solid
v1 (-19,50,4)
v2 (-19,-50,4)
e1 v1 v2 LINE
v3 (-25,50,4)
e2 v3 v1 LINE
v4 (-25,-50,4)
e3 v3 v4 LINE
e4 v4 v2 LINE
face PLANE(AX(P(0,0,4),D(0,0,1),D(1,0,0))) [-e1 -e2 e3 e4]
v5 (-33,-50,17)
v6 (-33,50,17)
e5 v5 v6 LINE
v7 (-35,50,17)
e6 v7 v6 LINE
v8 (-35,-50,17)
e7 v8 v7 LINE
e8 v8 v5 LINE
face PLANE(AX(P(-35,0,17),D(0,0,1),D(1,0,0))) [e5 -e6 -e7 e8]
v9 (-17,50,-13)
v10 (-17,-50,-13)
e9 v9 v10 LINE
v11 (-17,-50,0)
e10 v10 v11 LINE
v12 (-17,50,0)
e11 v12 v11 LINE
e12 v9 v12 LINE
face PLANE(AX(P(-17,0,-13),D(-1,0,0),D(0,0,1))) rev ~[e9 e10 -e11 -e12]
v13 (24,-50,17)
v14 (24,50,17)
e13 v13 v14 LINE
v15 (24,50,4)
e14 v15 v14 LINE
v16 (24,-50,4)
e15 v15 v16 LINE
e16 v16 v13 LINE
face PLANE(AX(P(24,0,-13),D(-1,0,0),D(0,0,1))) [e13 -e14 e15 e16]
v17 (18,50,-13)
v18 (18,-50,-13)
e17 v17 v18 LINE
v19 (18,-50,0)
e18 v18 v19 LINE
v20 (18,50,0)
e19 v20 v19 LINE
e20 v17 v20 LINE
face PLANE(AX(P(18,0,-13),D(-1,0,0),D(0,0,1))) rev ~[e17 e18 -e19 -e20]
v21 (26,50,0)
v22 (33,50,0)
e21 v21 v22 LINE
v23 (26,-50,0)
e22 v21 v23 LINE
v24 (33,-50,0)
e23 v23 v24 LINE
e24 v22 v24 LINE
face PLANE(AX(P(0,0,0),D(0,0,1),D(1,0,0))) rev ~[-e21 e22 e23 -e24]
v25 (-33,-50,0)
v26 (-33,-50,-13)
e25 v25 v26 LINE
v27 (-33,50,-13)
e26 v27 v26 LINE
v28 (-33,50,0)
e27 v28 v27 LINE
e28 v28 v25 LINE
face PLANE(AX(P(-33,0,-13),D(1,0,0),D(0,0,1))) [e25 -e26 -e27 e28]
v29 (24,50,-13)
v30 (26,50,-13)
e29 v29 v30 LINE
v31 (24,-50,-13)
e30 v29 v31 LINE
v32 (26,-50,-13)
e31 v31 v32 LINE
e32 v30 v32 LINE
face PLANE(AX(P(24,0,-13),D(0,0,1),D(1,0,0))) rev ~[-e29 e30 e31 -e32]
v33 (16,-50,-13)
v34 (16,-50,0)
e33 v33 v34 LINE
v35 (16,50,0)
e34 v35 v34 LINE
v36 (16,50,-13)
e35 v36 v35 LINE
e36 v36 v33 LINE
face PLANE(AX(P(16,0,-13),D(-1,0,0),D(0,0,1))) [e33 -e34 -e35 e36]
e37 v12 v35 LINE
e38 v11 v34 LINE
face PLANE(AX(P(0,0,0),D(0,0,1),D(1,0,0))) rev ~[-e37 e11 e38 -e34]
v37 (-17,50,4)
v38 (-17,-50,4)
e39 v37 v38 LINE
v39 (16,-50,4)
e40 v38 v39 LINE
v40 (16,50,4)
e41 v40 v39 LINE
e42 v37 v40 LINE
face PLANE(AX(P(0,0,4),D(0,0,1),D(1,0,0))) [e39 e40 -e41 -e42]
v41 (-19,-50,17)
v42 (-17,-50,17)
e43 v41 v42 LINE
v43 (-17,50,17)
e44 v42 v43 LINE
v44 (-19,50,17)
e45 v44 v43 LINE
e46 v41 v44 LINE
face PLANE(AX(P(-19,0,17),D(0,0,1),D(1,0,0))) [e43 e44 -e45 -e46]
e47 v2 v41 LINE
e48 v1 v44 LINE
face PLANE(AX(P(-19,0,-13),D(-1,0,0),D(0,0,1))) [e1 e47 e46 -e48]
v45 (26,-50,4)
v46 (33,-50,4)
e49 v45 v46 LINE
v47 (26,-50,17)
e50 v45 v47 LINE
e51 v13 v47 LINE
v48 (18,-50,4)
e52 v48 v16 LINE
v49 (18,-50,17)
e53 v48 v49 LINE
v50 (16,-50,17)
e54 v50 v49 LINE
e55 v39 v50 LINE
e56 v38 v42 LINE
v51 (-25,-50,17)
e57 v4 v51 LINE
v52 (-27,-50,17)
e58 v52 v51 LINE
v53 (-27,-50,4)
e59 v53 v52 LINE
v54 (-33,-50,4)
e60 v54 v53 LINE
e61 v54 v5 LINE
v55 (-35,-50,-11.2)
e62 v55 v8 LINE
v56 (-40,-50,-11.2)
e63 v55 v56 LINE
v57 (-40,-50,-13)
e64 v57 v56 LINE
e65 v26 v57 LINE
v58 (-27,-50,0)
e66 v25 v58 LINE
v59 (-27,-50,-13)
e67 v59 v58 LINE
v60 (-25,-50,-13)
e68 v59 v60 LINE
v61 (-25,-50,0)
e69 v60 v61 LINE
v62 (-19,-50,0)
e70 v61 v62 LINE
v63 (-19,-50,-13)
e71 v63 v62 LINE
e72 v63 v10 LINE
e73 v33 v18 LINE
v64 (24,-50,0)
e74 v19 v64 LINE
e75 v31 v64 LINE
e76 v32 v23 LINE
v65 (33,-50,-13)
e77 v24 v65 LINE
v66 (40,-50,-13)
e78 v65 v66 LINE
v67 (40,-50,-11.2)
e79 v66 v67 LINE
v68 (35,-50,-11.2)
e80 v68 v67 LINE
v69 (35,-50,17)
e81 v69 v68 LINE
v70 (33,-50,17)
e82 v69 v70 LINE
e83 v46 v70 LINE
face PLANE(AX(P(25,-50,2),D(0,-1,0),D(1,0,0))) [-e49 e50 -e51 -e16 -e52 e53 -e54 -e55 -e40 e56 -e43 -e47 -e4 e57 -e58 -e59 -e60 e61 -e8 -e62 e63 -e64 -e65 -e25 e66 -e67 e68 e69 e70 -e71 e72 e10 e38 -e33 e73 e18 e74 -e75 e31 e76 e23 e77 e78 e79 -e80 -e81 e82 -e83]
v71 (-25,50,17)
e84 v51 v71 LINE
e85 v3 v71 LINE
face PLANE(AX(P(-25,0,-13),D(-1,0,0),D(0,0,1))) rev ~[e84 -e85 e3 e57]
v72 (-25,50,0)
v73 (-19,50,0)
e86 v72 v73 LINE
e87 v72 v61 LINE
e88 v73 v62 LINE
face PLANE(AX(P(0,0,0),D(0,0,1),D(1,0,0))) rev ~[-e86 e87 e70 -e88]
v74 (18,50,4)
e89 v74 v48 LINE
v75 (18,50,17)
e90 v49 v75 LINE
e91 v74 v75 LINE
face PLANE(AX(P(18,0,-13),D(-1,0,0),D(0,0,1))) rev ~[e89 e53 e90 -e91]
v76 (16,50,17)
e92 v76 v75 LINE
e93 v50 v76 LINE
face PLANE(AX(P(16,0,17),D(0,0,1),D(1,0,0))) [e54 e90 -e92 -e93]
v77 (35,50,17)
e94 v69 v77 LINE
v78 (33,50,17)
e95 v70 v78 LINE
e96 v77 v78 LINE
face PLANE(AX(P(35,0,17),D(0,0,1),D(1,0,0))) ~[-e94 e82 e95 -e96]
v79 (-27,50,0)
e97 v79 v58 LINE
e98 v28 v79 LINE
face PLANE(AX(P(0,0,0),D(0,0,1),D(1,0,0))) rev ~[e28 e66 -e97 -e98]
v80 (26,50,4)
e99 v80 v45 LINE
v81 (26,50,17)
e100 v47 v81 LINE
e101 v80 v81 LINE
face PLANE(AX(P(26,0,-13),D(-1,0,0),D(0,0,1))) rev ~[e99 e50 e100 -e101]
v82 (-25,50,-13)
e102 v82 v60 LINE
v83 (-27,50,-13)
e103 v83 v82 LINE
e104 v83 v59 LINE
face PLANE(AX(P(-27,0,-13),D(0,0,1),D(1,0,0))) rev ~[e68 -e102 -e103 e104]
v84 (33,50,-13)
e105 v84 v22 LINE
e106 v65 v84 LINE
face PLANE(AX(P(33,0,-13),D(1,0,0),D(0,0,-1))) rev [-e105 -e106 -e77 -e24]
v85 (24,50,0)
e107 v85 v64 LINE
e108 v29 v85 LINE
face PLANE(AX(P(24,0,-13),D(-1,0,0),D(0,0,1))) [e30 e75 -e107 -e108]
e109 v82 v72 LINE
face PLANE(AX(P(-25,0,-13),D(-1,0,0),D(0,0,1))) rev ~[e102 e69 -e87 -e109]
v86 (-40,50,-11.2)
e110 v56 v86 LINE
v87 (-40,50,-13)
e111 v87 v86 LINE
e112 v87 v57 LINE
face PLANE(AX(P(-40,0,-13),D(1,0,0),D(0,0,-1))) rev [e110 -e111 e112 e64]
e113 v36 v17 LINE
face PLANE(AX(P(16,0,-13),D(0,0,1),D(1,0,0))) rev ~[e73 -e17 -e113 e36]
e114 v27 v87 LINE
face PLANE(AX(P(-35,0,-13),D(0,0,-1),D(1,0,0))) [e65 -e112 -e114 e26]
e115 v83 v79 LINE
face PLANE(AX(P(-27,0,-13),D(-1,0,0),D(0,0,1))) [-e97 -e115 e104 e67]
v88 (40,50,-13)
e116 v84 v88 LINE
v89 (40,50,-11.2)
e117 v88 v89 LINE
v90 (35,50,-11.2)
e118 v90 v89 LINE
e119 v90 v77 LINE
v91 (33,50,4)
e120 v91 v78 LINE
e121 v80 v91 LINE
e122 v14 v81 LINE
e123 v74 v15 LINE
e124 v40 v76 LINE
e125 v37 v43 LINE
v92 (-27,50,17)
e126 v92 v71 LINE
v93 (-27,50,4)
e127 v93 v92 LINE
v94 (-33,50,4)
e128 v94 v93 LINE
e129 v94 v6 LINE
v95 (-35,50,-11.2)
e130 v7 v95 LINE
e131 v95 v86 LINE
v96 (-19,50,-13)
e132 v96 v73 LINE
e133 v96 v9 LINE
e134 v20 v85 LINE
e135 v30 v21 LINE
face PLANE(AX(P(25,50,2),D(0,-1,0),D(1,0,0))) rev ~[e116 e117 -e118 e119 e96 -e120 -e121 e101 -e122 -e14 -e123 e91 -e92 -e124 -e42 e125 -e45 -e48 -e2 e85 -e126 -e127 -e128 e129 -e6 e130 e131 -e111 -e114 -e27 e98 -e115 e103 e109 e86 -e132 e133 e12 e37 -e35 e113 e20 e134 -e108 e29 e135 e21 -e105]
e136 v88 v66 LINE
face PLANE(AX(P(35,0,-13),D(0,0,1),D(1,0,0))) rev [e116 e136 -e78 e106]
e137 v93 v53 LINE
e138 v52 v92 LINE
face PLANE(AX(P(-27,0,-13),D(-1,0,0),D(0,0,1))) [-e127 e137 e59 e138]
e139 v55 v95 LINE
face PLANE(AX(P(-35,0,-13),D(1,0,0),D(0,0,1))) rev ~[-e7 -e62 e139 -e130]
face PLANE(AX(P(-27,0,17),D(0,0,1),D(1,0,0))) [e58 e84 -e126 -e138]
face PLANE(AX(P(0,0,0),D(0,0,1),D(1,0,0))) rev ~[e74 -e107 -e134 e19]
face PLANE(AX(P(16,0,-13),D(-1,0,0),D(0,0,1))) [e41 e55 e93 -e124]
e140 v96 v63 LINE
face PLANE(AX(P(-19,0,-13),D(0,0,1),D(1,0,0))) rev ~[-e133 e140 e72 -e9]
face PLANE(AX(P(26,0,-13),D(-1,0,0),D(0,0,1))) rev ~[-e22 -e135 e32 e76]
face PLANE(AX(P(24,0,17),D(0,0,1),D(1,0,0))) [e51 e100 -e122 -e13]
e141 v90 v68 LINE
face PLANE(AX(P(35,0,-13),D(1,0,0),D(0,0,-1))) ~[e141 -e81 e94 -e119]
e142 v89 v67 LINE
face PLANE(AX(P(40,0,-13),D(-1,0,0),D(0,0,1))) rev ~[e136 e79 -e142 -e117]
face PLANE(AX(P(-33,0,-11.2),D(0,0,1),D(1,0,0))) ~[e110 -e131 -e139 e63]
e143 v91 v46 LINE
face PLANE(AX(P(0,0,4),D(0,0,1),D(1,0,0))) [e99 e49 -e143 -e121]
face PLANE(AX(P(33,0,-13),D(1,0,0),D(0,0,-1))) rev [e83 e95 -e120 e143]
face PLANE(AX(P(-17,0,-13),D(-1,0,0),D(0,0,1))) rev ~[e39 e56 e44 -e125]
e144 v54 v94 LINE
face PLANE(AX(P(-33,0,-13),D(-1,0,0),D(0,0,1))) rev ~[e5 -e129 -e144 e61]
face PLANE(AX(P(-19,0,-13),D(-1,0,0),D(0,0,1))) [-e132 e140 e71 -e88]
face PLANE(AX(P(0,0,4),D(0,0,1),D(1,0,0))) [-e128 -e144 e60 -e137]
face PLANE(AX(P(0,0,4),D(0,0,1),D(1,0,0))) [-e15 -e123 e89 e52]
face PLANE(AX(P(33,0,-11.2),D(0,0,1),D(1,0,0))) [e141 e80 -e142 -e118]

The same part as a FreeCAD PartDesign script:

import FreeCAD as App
import Part
import Sketcher
from FreeCAD import Vector
Q = App.Units.Quantity


def add_polygon(sketch, points):
    """Adds a closed chain of lines whose ends are joined by coincident constraints."""
    first, n = sketch.GeometryCount, len(points)
    for a, b in zip(points, points[1:] + points[:1]):
        sketch.addGeometry(Part.LineSegment(App.Vector(*a, 0), App.Vector(*b, 0)), False)
    for i in range(n):
        sketch.addConstraint(Sketcher.Constraint("Coincident", first + i, 2, first + (i + 1) % n, 1))

doc = App.newDocument("Part")
params = doc.addObject("Spreadsheet::Sheet", "Params")
for row, (alias, value) in enumerate([
    ("sketch1_width", "70 mm"),
    ("sketch1_height", "100 mm"),
    ("pad1_length", "4 mm"),
    ("sketch2_width", "2 mm"),
    ("sketch2_height", "30 mm"),
    ("pad2_length", "50 mm"),
    ("pad2_length2", "50 mm"),
    ("linearpattern_pitch", "8 mm"),
    ("linearpattern2_pitch", "51 mm"),
    ("linearpattern3_pitch", "59 mm"),
    ("sketch3_width", "7 mm"),
    ("sketch3_height", "1.8 mm"),
    ("pad3_length", "50 mm"),
    ("pad3_length2", "50 mm"),
], start=1):
    params.set(f"A{row}", alias)
    params.set(f"B{row}", "=" + value)
    params.setAlias(f"B{row}", alias)

body = doc.addObject("PartDesign::Body", "Body")

sketch1 = body.newObject("Sketcher::SketchObject", "Sketch")
sketch1.AttachmentSupport = (doc.getObject("XY_Plane"), [""])
sketch1.MapMode = "FlatFace"
add_polygon(sketch1, [(-35, 50), (-35, -50), (35, -50), (35, 50)])
sketch1.addConstraint([
    Sketcher.Constraint("Vertical", 0),
    Sketcher.Constraint("Horizontal", 1),
    Sketcher.Constraint("Vertical", 2),
    Sketcher.Constraint("Horizontal", 3),
    Sketcher.Constraint("Symmetric", 0, 2, 2, 2, -1, 1),
    Sketcher.Constraint("DistanceX", 1, 1, 1, 2, Q("70 mm")),
    Sketcher.Constraint("DistanceY", 0, 2, 0, 1, Q("100 mm")),
])
sketch1.setExpression("Constraints[9]", "Params.sketch1_width")
sketch1.setExpression("Constraints[10]", "Params.sketch1_height")
pad1 = body.newObject("PartDesign::Pad", "Pad")
pad1.Profile = sketch1
pad1.setExpression("Length", "Params.pad1_length")

sketch2 = body.newObject("Sketcher::SketchObject", "Sketch001")
sketch2.AttachmentSupport = (doc.getObject("XZ_Plane"), [""])
sketch2.MapMode = "FlatFace"
add_polygon(sketch2, [(-35, 17), (-35, -13), (-33, -13), (-33, 17)])
sketch2.addConstraint([
    Sketcher.Constraint("Vertical", 0),
    Sketcher.Constraint("Horizontal", 1),
    Sketcher.Constraint("Vertical", 2),
    Sketcher.Constraint("Horizontal", 3),
    Sketcher.Constraint("DistanceX", 1, 1, 1, 2, Q("2 mm")),
    Sketcher.Constraint("DistanceY", 0, 2, 0, 1, Q("30 mm")),
    Sketcher.Constraint("DistanceX", 0, 2, -1, 1, Q("35 mm")),
    Sketcher.Constraint("DistanceY", 0, 2, -1, 1, Q("13 mm")),
])
sketch2.setExpression("Constraints[8]", "Params.sketch2_width")
sketch2.setExpression("Constraints[9]", "Params.sketch2_height")
pad2 = body.newObject("PartDesign::Pad", "Pad001")
pad2.Profile = sketch2
pad2.Type = "TwoLengths"
pad2.setExpression("Length", "Params.pad2_length")
pad2.setExpression("Length2", "Params.pad2_length2")
doc.recompute()

mirrored = body.newObject("PartDesign::Mirrored", "Mirrored")
mirrored.Originals = [pad2]
mirrored.MirrorPlane = (doc.getObject("YZ_Plane"), [""])
body.Tip = mirrored
doc.recompute()

linearpattern = body.newObject("PartDesign::LinearPattern", "LinearPattern")
linearpattern.Originals = [pad2]
linearpattern.Direction = (doc.getObject("X_Axis"), [""])
linearpattern.Mode = "offset"
linearpattern.setExpression("Offset", "Params.linearpattern_pitch")
linearpattern.Occurrences = 3
body.Tip = linearpattern
doc.recompute()

linearpattern2 = body.newObject("PartDesign::LinearPattern", "LinearPattern001")
linearpattern2.Originals = [pad2]
linearpattern2.Direction = (doc.getObject("X_Axis"), [""])
linearpattern2.Mode = "offset"
linearpattern2.setExpression("Offset", "Params.linearpattern2_pitch")
linearpattern2.Occurrences = 2
body.Tip = linearpattern2
doc.recompute()

linearpattern3 = body.newObject("PartDesign::LinearPattern", "LinearPattern002")
linearpattern3.Originals = [pad2]
linearpattern3.Direction = (doc.getObject("X_Axis"), [""])
linearpattern3.Mode = "offset"
linearpattern3.setExpression("Offset", "Params.linearpattern3_pitch")
linearpattern3.Occurrences = 2
body.Tip = linearpattern3

sketch3 = body.newObject("Sketcher::SketchObject", "Sketch002")
sketch3.AttachmentSupport = (doc.getObject("XZ_Plane"), [""])
sketch3.MapMode = "FlatFace"
add_polygon(sketch3, [(33, -11.2), (33, -13), (40, -13), (40, -11.2)])
sketch3.addConstraint([
    Sketcher.Constraint("Vertical", 0),
    Sketcher.Constraint("Horizontal", 1),
    Sketcher.Constraint("Vertical", 2),
    Sketcher.Constraint("Horizontal", 3),
    Sketcher.Constraint("DistanceX", 1, 1, 1, 2, Q("7 mm")),
    Sketcher.Constraint("DistanceY", 0, 2, 0, 1, Q("1.8 mm")),
    Sketcher.Constraint("DistanceX", -1, 1, 0, 2, Q("33 mm")),
    Sketcher.Constraint("DistanceY", 0, 2, -1, 1, Q("13 mm")),
])
sketch3.setExpression("Constraints[8]", "Params.sketch3_width")
sketch3.setExpression("Constraints[9]", "Params.sketch3_height")
pad3 = body.newObject("PartDesign::Pad", "Pad002")
pad3.Profile = sketch3
pad3.Type = "TwoLengths"
pad3.setExpression("Length", "Params.pad3_length")
pad3.setExpression("Length2", "Params.pad3_length2")
doc.recompute()

mirrored2 = body.newObject("PartDesign::Mirrored", "Mirrored001")
mirrored2.Originals = [pad3]
mirrored2.MirrorPlane = (doc.getObject("YZ_Plane"), [""])
body.Tip = mirrored2

doc.recompute()
